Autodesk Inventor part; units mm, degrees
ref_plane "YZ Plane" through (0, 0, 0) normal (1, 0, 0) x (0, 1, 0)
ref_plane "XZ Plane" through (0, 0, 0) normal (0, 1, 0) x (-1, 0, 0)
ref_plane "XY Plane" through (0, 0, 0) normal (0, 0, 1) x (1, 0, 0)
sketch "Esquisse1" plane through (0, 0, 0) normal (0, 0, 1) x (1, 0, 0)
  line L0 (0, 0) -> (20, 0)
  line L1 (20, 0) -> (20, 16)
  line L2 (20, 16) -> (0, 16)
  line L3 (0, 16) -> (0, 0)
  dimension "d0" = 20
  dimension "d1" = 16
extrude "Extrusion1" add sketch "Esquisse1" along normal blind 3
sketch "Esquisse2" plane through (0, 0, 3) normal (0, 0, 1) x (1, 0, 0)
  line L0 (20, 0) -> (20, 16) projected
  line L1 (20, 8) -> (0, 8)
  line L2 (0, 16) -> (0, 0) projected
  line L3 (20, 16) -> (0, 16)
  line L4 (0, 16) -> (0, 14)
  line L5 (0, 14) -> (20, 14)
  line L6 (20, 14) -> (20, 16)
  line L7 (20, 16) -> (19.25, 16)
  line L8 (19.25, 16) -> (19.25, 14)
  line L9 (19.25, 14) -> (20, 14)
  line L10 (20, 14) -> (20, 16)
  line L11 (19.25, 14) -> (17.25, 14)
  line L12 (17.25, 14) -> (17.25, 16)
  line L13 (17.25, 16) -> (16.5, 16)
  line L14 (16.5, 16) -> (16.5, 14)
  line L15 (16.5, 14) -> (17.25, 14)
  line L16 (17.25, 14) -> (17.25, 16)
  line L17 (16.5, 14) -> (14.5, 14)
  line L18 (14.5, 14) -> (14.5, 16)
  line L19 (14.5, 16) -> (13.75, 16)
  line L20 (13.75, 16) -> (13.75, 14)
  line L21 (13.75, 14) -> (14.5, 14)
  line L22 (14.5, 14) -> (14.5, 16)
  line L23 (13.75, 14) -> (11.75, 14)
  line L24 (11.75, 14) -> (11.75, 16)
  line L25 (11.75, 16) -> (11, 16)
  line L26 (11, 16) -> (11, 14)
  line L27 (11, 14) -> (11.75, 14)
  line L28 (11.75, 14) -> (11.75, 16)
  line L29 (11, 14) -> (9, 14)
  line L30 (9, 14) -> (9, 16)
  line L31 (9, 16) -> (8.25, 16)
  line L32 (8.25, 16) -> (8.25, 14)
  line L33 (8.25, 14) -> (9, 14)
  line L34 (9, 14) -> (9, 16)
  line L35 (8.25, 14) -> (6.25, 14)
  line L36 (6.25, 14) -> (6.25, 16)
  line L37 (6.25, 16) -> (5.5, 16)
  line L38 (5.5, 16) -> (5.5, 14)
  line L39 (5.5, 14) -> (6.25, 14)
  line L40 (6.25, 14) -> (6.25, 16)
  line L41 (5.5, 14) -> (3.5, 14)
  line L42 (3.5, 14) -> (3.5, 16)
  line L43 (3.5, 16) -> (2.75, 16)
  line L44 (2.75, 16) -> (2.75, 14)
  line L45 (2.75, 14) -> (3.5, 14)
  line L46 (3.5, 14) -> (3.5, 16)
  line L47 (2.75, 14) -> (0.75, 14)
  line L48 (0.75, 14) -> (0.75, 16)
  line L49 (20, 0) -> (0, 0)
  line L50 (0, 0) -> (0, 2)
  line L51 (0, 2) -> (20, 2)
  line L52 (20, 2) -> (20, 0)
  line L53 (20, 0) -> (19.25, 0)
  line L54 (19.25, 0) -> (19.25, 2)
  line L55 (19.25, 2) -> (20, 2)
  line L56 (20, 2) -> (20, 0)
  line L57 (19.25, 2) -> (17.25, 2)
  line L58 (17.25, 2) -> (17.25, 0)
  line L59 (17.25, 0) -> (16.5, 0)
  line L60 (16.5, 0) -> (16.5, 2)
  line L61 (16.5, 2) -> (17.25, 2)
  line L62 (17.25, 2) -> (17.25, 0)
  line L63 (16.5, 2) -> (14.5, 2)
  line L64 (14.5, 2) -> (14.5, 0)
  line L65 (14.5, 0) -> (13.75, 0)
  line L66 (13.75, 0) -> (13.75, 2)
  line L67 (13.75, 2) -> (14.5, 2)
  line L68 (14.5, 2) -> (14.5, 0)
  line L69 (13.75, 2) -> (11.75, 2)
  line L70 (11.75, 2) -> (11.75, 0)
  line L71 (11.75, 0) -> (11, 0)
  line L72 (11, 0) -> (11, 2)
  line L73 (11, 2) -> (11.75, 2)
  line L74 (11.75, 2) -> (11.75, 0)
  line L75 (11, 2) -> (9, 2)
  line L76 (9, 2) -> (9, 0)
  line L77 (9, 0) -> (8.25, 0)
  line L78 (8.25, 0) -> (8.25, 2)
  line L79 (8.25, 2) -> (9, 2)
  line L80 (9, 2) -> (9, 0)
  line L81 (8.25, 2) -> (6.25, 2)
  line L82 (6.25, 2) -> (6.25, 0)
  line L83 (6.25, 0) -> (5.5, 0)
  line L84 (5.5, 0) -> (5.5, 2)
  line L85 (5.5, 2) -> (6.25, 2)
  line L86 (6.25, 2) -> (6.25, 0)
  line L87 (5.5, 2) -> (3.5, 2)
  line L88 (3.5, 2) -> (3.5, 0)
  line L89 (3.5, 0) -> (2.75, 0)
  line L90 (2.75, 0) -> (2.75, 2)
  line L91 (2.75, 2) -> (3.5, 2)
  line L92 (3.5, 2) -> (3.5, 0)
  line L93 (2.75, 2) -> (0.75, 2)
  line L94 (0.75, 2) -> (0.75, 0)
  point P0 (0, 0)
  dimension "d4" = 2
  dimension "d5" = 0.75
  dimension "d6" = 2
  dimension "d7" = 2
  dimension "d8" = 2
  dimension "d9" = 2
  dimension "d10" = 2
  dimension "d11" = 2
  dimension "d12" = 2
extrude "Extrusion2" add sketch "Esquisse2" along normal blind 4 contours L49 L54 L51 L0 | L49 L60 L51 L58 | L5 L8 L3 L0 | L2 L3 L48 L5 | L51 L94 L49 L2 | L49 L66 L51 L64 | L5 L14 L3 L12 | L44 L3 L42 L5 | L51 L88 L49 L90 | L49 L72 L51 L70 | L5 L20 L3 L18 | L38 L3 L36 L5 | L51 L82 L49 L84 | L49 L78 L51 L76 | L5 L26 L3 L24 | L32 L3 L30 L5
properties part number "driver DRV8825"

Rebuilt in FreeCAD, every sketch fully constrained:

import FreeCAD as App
import Part
import Sketcher
from FreeCAD import Vector
Q = App.Units.Quantity

doc = App.newDocument("Part")
body = doc.addObject("PartDesign::Body", "Body")

# Sketch on XY plane
sketch1 = body.newObject("Sketcher::SketchObject", "Sketch")
sketch1.AttachmentSupport = (doc.getObject("XY_Plane"), [""])
sketch1.MapMode = "FlatFace"
sketch1.addGeometry([
    Part.LineSegment(Vector(0, 16, 0), Vector(0, 0, 0)),
    Part.LineSegment(Vector(0, 0, 0), Vector(20, 0, 0)),
    Part.LineSegment(Vector(20, 0, 0), Vector(20, 16, 0)),
    Part.LineSegment(Vector(20, 16, 0), Vector(0, 16, 0)),
], False)
sketch1.addConstraint([
    Sketcher.Constraint("Coincident", 0, 2, 1, 1),
    Sketcher.Constraint("Coincident", 1, 2, 2, 1),
    Sketcher.Constraint("Coincident", 2, 2, 3, 1),
    Sketcher.Constraint("Coincident", 3, 2, 0, 1),
    Sketcher.Constraint("Vertical", 0),
    Sketcher.Constraint("Horizontal", 1),
    Sketcher.Constraint("Vertical", 2),
    Sketcher.Constraint("Horizontal", 3),
    Sketcher.Constraint("Coincident", 0, 2, -1, 1),
    Sketcher.Constraint("DistanceX", 1, 1, 1, 2, Q("20 mm")),
    Sketcher.Constraint("DistanceY", 0, 2, 0, 1, Q("16 mm")),
])
pad1 = body.newObject("PartDesign::Pad", "Pad")
pad1.Profile = sketch1
pad1.Length = 3

# Sketch on XY plane
sketch2 = body.newObject("Sketcher::SketchObject", "Sketch001")
sketch2.AttachmentSupport = (doc.getObject("XY_Plane"), [""])
sketch2.MapMode = "FlatFace"
sketch2.AttachmentOffset = App.Placement(Vector(0, 0, 3), App.Rotation())
sketch2.addGeometry([
    Part.LineSegment(Vector(19.2, 0, 0), Vector(20, 0, 0)),  # 0
    Part.LineSegment(Vector(20, 0, 0), Vector(20, 2, 0)),  # 1
    Part.LineSegment(Vector(20, 2, 0), Vector(19.2, 2, 0)),  # 2
    Part.LineSegment(Vector(19.2, 2, 0), Vector(19.2, 0, 0)),  # 3
    Part.LineSegment(Vector(16.5, 0, 0), Vector(17.2, 0, 0)),  # 4
    Part.LineSegment(Vector(17.2, 0, 0), Vector(17.2, 2, 0)),  # 5
    Part.LineSegment(Vector(17.2, 2, 0), Vector(16.5, 2, 0)),  # 6
    Part.LineSegment(Vector(16.5, 2, 0), Vector(16.5, 0, 0)),  # 7
    Part.LineSegment(Vector(19.2, 14, 0), Vector(20, 14, 0)),  # 8
    Part.LineSegment(Vector(20, 14, 0), Vector(20, 16, 0)),  # 9
    Part.LineSegment(Vector(20, 16, 0), Vector(19.2, 16, 0)),  # 10
    Part.LineSegment(Vector(19.2, 16, 0), Vector(19.2, 14, 0)),  # 11
    Part.LineSegment(Vector(0, 16, 0), Vector(0, 14, 0)),  # 12
    Part.LineSegment(Vector(0, 14, 0), Vector(0.8, 14, 0)),  # 13
    Part.LineSegment(Vector(0.8, 14, 0), Vector(0.8, 16, 0)),  # 14
    Part.LineSegment(Vector(0.8, 16, 0), Vector(0, 16, 0)),  # 15
    Part.LineSegment(Vector(0.8, 2, 0), Vector(0, 2, 0)),  # 16
    Part.LineSegment(Vector(0, 2, 0), Vector(0, 0, 0)),  # 17
    Part.LineSegment(Vector(0, 0, 0), Vector(0.8, 0, 0)),  # 18
    Part.LineSegment(Vector(0.8, 0, 0), Vector(0.8, 2, 0)),  # 19
    Part.LineSegment(Vector(13.8, 0, 0), Vector(14.5, 0, 0)),  # 20
    Part.LineSegment(Vector(14.5, 0, 0), Vector(14.5, 2, 0)),  # 21
    Part.LineSegment(Vector(14.5, 2, 0), Vector(13.8, 2, 0)),  # 22
    Part.LineSegment(Vector(13.8, 2, 0), Vector(13.8, 0, 0)),  # 23
    Part.LineSegment(Vector(16.5, 14, 0), Vector(17.2, 14, 0)),  # 24
    Part.LineSegment(Vector(17.2, 14, 0), Vector(17.2, 16, 0)),  # 25
    Part.LineSegment(Vector(17.2, 16, 0), Vector(16.5, 16, 0)),  # 26
    Part.LineSegment(Vector(16.5, 16, 0), Vector(16.5, 14, 0)),  # 27
    Part.LineSegment(Vector(2.8, 16, 0), Vector(2.8, 14, 0)),  # 28
    Part.LineSegment(Vector(2.8, 14, 0), Vector(3.5, 14, 0)),  # 29
    Part.LineSegment(Vector(3.5, 14, 0), Vector(3.5, 16, 0)),  # 30
    Part.LineSegment(Vector(3.5, 16, 0), Vector(2.8, 16, 0)),  # 31
    Part.LineSegment(Vector(3.5, 2, 0), Vector(2.8, 2, 0)),  # 32
    Part.LineSegment(Vector(2.8, 2, 0), Vector(2.8, 0, 0)),  # 33
    Part.LineSegment(Vector(2.8, 0, 0), Vector(3.5, 0, 0)),  # 34
    Part.LineSegment(Vector(3.5, 0, 0), Vector(3.5, 2, 0)),  # 35
    Part.LineSegment(Vector(11, 0, 0), Vector(11.8, 0, 0)),  # 36
    Part.LineSegment(Vector(11.8, 0, 0), Vector(11.8, 2, 0)),  # 37
    Part.LineSegment(Vector(11.8, 2, 0), Vector(11, 2, 0)),  # 38
    Part.LineSegment(Vector(11, 2, 0), Vector(11, 0, 0)),  # 39
    Part.LineSegment(Vector(13.8, 14, 0), Vector(14.5, 14, 0)),  # 40
    Part.LineSegment(Vector(14.5, 14, 0), Vector(14.5, 16, 0)),  # 41
    Part.LineSegment(Vector(14.5, 16, 0), Vector(13.8, 16, 0)),  # 42
    Part.LineSegment(Vector(13.8, 16, 0), Vector(13.8, 14, 0)),  # 43
    Part.LineSegment(Vector(5.5, 16, 0), Vector(5.5, 14, 0)),  # 44
    Part.LineSegment(Vector(5.5, 14, 0), Vector(6.2, 14, 0)),  # 45
    Part.LineSegment(Vector(6.2, 14, 0), Vector(6.2, 16, 0)),  # 46
    Part.LineSegment(Vector(6.2, 16, 0), Vector(5.5, 16, 0)),  # 47
    Part.LineSegment(Vector(6.2, 2, 0), Vector(5.5, 2, 0)),  # 48
    Part.LineSegment(Vector(5.5, 2, 0), Vector(5.5, 0, 0)),  # 49
    Part.LineSegment(Vector(5.5, 0, 0), Vector(6.2, 0, 0)),  # 50
    Part.LineSegment(Vector(6.2, 0, 0), Vector(6.2, 2, 0)),  # 51
    Part.LineSegment(Vector(8.2, 0, 0), Vector(9, 0, 0)),  # 52
    Part.LineSegment(Vector(9, 0, 0), Vector(9, 2, 0)),  # 53
    Part.LineSegment(Vector(9, 2, 0), Vector(8.2, 2, 0)),  # 54
    Part.LineSegment(Vector(8.2, 2, 0), Vector(8.2, 0, 0)),  # 55
    Part.LineSegment(Vector(11, 14, 0), Vector(11.8, 14, 0)),  # 56
    Part.LineSegment(Vector(11.8, 14, 0), Vector(11.8, 16, 0)),  # 57
    Part.LineSegment(Vector(11.8, 16, 0), Vector(11, 16, 0)),  # 58
    Part.LineSegment(Vector(11, 16, 0), Vector(11, 14, 0)),  # 59
    Part.LineSegment(Vector(8.2, 16, 0), Vector(8.2, 14, 0)),  # 60
    Part.LineSegment(Vector(8.2, 14, 0), Vector(9, 14, 0)),  # 61
    Part.LineSegment(Vector(9, 14, 0), Vector(9, 16, 0)),  # 62
    Part.LineSegment(Vector(9, 16, 0), Vector(8.2, 16, 0)),  # 63
], False)
sketch2.addConstraint([
    Sketcher.Constraint("Coincident", 0, 2, 1, 1),
    Sketcher.Constraint("Coincident", 1, 2, 2, 1),
    Sketcher.Constraint("Coincident", 2, 2, 3, 1),
    Sketcher.Constraint("Coincident", 3, 2, 0, 1),
    Sketcher.Constraint("Coincident", 4, 2, 5, 1),
    Sketcher.Constraint("Coincident", 5, 2, 6, 1),
    Sketcher.Constraint("Coincident", 6, 2, 7, 1),
    Sketcher.Constraint("Coincident", 7, 2, 4, 1),
    Sketcher.Constraint("Coincident", 8, 2, 9, 1),
    Sketcher.Constraint("Coincident", 9, 2, 10, 1),
    Sketcher.Constraint("Coincident", 10, 2, 11, 1),
    Sketcher.Constraint("Coincident", 11, 2, 8, 1),
    Sketcher.Constraint("Coincident", 12, 2, 13, 1),
    Sketcher.Constraint("Coincident", 13, 2, 14, 1),
    Sketcher.Constraint("Coincident", 14, 2, 15, 1),
    Sketcher.Constraint("Coincident", 15, 2, 12, 1),
    Sketcher.Constraint("Coincident", 16, 2, 17, 1),
    Sketcher.Constraint("Coincident", 17, 2, 18, 1),
    Sketcher.Constraint("Coincident", 18, 2, 19, 1),
    Sketcher.Constraint("Coincident", 19, 2, 16, 1),
    Sketcher.Constraint("Coincident", 20, 2, 21, 1),
    Sketcher.Constraint("Coincident", 21, 2, 22, 1),
    Sketcher.Constraint("Coincident", 22, 2, 23, 1),
    Sketcher.Constraint("Coincident", 23, 2, 20, 1),
    Sketcher.Constraint("Coincident", 24, 2, 25, 1),
    Sketcher.Constraint("Coincident", 25, 2, 26, 1),
    Sketcher.Constraint("Coincident", 26, 2, 27, 1),
    Sketcher.Constraint("Coincident", 27, 2, 24, 1),
    Sketcher.Constraint("Coincident", 28, 2, 29, 1),
    Sketcher.Constraint("Coincident", 29, 2, 30, 1),
    Sketcher.Constraint("Coincident", 30, 2, 31, 1),
    Sketcher.Constraint("Coincident", 31, 2, 28, 1),
    Sketcher.Constraint("Coincident", 32, 2, 33, 1),
    Sketcher.Constraint("Coincident", 33, 2, 34, 1),
    Sketcher.Constraint("Coincident", 34, 2, 35, 1),
    Sketcher.Constraint("Coincident", 35, 2, 32, 1),
    Sketcher.Constraint("Coincident", 36, 2, 37, 1),
    Sketcher.Constraint("Coincident", 37, 2, 38, 1),
    Sketcher.Constraint("Coincident", 38, 2, 39, 1),
    Sketcher.Constraint("Coincident", 39, 2, 36, 1),
    Sketcher.Constraint("Coincident", 40, 2, 41, 1),
    Sketcher.Constraint("Coincident", 41, 2, 42, 1),
    Sketcher.Constraint("Coincident", 42, 2, 43, 1),
    Sketcher.Constraint("Coincident", 43, 2, 40, 1),
    Sketcher.Constraint("Coincident", 44, 2, 45, 1),
    Sketcher.Constraint("Coincident", 45, 2, 46, 1),
    Sketcher.Constraint("Coincident", 46, 2, 47, 1),
    Sketcher.Constraint("Coincident", 47, 2, 44, 1),
    Sketcher.Constraint("Coincident", 48, 2, 49, 1),
    Sketcher.Constraint("Coincident", 49, 2, 50, 1),
    Sketcher.Constraint("Coincident", 50, 2, 51, 1),
    Sketcher.Constraint("Coincident", 51, 2, 48, 1),
    Sketcher.Constraint("Coincident", 52, 2, 53, 1),
    Sketcher.Constraint("Coincident", 53, 2, 54, 1),
    Sketcher.Constraint("Coincident", 54, 2, 55, 1),
    Sketcher.Constraint("Coincident", 55, 2, 52, 1),
    Sketcher.Constraint("Coincident", 56, 2, 57, 1),
    Sketcher.Constraint("Coincident", 57, 2, 58, 1),
    Sketcher.Constraint("Coincident", 58, 2, 59, 1),
    Sketcher.Constraint("Coincident", 59, 2, 56, 1),
    Sketcher.Constraint("Coincident", 60, 2, 61, 1),
    Sketcher.Constraint("Coincident", 61, 2, 62, 1),
    Sketcher.Constraint("Coincident", 62, 2, 63, 1),
    Sketcher.Constraint("Coincident", 63, 2, 60, 1),
    Sketcher.Constraint("Horizontal", 0),
    Sketcher.Constraint("Vertical", 1),
    Sketcher.Constraint("Horizontal", 2),
    Sketcher.Constraint("Vertical", 3),
    Sketcher.Constraint("Horizontal", 4),
    Sketcher.Constraint("Vertical", 5),
    Sketcher.Constraint("Horizontal", 6),
    Sketcher.Constraint("Vertical", 7),
    Sketcher.Constraint("Horizontal", 8),
    Sketcher.Constraint("Vertical", 9),
    Sketcher.Constraint("Horizontal", 10),
    Sketcher.Constraint("Vertical", 11),
    Sketcher.Constraint("Vertical", 12),
    Sketcher.Constraint("Horizontal", 13),
    Sketcher.Constraint("Vertical", 14),
    Sketcher.Constraint("Horizontal", 15),
    Sketcher.Constraint("Horizontal", 16),
    Sketcher.Constraint("Vertical", 17),
    Sketcher.Constraint("Horizontal", 18),
    Sketcher.Constraint("Vertical", 19),
    Sketcher.Constraint("Horizontal", 20),
    Sketcher.Constraint("Vertical", 21),
    Sketcher.Constraint("Horizontal", 22),
    Sketcher.Constraint("Vertical", 23),
    Sketcher.Constraint("Horizontal", 24),
    Sketcher.Constraint("Vertical", 25),
    Sketcher.Constraint("Horizontal", 26),
    Sketcher.Constraint("Vertical", 27),
    Sketcher.Constraint("Vertical", 28),
    Sketcher.Constraint("Horizontal", 29),
    Sketcher.Constraint("Vertical", 30),
    Sketcher.Constraint("Horizontal", 31),
    Sketcher.Constraint("Horizontal", 32),
    Sketcher.Constraint("Vertical", 33),
    Sketcher.Constraint("Horizontal", 34),
    Sketcher.Constraint("Vertical", 35),
    Sketcher.Constraint("Horizontal", 36),
    Sketcher.Constraint("Vertical", 37),
    Sketcher.Constraint("Horizontal", 38),
    Sketcher.Constraint("Vertical", 39),
    Sketcher.Constraint("Horizontal", 40),
    Sketcher.Constraint("Vertical", 41),
    Sketcher.Constraint("Horizontal", 42),
    Sketcher.Constraint("Vertical", 43),
    Sketcher.Constraint("Vertical", 44),
    Sketcher.Constraint("Horizontal", 45),
    Sketcher.Constraint("Vertical", 46),
    Sketcher.Constraint("Horizontal", 47),
    Sketcher.Constraint("Horizontal", 48),
    Sketcher.Constraint("Vertical", 49),
    Sketcher.Constraint("Horizontal", 50),
    Sketcher.Constraint("Vertical", 51),
    Sketcher.Constraint("Horizontal", 52),
    Sketcher.Constraint("Vertical", 53),
    Sketcher.Constraint("Horizontal", 54),
    Sketcher.Constraint("Vertical", 55),
    Sketcher.Constraint("Horizontal", 56),
    Sketcher.Constraint("Vertical", 57),
    Sketcher.Constraint("Horizontal", 58),
    Sketcher.Constraint("Vertical", 59),
    Sketcher.Constraint("Vertical", 60),
    Sketcher.Constraint("Horizontal", 61),
    Sketcher.Constraint("Vertical", 62),
    Sketcher.Constraint("Horizontal", 63),
    Sketcher.Constraint("Coincident", 17, 2, -1, 1),
    Sketcher.Constraint("PointOnObject", 0, 2, -1),
    Sketcher.Constraint("PointOnObject", 4, 2, -1),
    Sketcher.Constraint("PointOnObject", 12, 2, -2),
    Sketcher.Constraint("PointOnObject", 20, 2, -1),
    Sketcher.Constraint("PointOnObject", 33, 2, -1),
    Sketcher.Constraint("PointOnObject", 36, 2, -1),
    Sketcher.Constraint("PointOnObject", 49, 2, -1),
    Sketcher.Constraint("PointOnObject", 52, 2, -1),
    Sketcher.Constraint("Horizontal", 2, 2, 5, 2),
    Sketcher.Constraint("Horizontal", 11, 2, 12, 2),
    Sketcher.Constraint("Horizontal", 10, 2, 14, 2),
    Sketcher.Constraint("Horizontal", 6, 2, 16, 2),
    Sketcher.Constraint("Horizontal", 19, 2, 21, 2),
    Sketcher.Constraint("Horizontal", 13, 2, 24, 2),
    Sketcher.Constraint("Horizontal", 15, 2, 25, 2),
    Sketcher.Constraint("Horizontal", 27, 2, 28, 2),
    Sketcher.Constraint("Horizontal", 26, 2, 30, 2),
    Sketcher.Constraint("Horizontal", 22, 2, 32, 2),
    Sketcher.Constraint("Horizontal", 35, 2, 37, 2),
    Sketcher.Constraint("Horizontal", 29, 2, 40, 2),
    Sketcher.Constraint("Horizontal", 31, 2, 41, 2),
    Sketcher.Constraint("Horizontal", 43, 2, 44, 2),
    Sketcher.Constraint("Horizontal", 42, 2, 46, 2),
    Sketcher.Constraint("Horizontal", 38, 2, 48, 2),
    Sketcher.Constraint("Horizontal", 51, 2, 53, 2),
    Sketcher.Constraint("Horizontal", 45, 2, 56, 2),
    Sketcher.Constraint("Horizontal", 47, 2, 57, 2),
    Sketcher.Constraint("Horizontal", 59, 2, 60, 2),
    Sketcher.Constraint("Horizontal", 58, 2, 62, 2),
    Sketcher.Constraint("Vertical", 1, 2, 8, 2),
    Sketcher.Constraint("Vertical", 3, 2, 10, 2),
    Sketcher.Constraint("Vertical", 14, 2, 18, 2),
    Sketcher.Constraint("Vertical", 5, 2, 24, 2),
    Sketcher.Constraint("Vertical", 7, 2, 26, 2),
    Sketcher.Constraint("Vertical", 31, 2, 32, 2),
    Sketcher.Constraint("Vertical", 30, 2, 34, 2),
    Sketcher.Constraint("Vertical", 21, 2, 40, 2),
    Sketcher.Constraint("Vertical", 23, 2, 42, 2),
    Sketcher.Constraint("Vertical", 47, 2, 48, 2),
    Sketcher.Constraint("Vertical", 46, 2, 50, 2),
    Sketcher.Constraint("Vertical", 37, 2, 56, 2),
    Sketcher.Constraint("Vertical", 39, 2, 58, 2),
    Sketcher.Constraint("Vertical", 55, 2, 60, 2),
    Sketcher.Constraint("Vertical", 53, 2, 61, 2),
    Sketcher.Constraint("Equal", 2, 4),
    Sketcher.Constraint("Equal", 10, 13),
    Sketcher.Constraint("Equal", 18, 20),
    Sketcher.Constraint("Equal", 26, 29),
    Sketcher.Constraint("Equal", 34, 36),
    Sketcher.Constraint("Equal", 42, 45),
    Sketcher.Constraint("Equal", 50, 52),
    Sketcher.Constraint("Equal", 7, 9),
    Sketcher.Constraint("DistanceY", 1, 1, 1, 2, Q("2 mm")),
    Sketcher.Constraint("DistanceX", 0, 1, 0, 2, Q("0.75 mm")),
    Sketcher.Constraint("DistanceX", -1, 1, 0, 2, Q("20 mm")),
    Sketcher.Constraint("DistanceY", -1, 1, 8, 2, Q("14 mm")),
    Sketcher.Constraint("DistanceX", -1, 1, 38, 2, Q("11 mm")),
    Sketcher.Constraint("DistanceX", -1, 1, 52, 2, Q("9 mm")),
    Sketcher.Constraint("DistanceX", -1, 1, 6, 2, Q("16.5 mm")),
    Sketcher.Constraint("DistanceX", -1, 1, 20, 2, Q("14.5 mm")),
    Sketcher.Constraint("DistanceX", -1, 1, 29, 2, Q("3.5 mm")),
    Sketcher.Constraint("DistanceX", -1, 1, 44, 2, Q("5.5 mm")),
])
pad2 = body.newObject("PartDesign::Pad", "Pad001")
pad2.Profile = sketch2
pad2.Length = 4

doc.recompute()
